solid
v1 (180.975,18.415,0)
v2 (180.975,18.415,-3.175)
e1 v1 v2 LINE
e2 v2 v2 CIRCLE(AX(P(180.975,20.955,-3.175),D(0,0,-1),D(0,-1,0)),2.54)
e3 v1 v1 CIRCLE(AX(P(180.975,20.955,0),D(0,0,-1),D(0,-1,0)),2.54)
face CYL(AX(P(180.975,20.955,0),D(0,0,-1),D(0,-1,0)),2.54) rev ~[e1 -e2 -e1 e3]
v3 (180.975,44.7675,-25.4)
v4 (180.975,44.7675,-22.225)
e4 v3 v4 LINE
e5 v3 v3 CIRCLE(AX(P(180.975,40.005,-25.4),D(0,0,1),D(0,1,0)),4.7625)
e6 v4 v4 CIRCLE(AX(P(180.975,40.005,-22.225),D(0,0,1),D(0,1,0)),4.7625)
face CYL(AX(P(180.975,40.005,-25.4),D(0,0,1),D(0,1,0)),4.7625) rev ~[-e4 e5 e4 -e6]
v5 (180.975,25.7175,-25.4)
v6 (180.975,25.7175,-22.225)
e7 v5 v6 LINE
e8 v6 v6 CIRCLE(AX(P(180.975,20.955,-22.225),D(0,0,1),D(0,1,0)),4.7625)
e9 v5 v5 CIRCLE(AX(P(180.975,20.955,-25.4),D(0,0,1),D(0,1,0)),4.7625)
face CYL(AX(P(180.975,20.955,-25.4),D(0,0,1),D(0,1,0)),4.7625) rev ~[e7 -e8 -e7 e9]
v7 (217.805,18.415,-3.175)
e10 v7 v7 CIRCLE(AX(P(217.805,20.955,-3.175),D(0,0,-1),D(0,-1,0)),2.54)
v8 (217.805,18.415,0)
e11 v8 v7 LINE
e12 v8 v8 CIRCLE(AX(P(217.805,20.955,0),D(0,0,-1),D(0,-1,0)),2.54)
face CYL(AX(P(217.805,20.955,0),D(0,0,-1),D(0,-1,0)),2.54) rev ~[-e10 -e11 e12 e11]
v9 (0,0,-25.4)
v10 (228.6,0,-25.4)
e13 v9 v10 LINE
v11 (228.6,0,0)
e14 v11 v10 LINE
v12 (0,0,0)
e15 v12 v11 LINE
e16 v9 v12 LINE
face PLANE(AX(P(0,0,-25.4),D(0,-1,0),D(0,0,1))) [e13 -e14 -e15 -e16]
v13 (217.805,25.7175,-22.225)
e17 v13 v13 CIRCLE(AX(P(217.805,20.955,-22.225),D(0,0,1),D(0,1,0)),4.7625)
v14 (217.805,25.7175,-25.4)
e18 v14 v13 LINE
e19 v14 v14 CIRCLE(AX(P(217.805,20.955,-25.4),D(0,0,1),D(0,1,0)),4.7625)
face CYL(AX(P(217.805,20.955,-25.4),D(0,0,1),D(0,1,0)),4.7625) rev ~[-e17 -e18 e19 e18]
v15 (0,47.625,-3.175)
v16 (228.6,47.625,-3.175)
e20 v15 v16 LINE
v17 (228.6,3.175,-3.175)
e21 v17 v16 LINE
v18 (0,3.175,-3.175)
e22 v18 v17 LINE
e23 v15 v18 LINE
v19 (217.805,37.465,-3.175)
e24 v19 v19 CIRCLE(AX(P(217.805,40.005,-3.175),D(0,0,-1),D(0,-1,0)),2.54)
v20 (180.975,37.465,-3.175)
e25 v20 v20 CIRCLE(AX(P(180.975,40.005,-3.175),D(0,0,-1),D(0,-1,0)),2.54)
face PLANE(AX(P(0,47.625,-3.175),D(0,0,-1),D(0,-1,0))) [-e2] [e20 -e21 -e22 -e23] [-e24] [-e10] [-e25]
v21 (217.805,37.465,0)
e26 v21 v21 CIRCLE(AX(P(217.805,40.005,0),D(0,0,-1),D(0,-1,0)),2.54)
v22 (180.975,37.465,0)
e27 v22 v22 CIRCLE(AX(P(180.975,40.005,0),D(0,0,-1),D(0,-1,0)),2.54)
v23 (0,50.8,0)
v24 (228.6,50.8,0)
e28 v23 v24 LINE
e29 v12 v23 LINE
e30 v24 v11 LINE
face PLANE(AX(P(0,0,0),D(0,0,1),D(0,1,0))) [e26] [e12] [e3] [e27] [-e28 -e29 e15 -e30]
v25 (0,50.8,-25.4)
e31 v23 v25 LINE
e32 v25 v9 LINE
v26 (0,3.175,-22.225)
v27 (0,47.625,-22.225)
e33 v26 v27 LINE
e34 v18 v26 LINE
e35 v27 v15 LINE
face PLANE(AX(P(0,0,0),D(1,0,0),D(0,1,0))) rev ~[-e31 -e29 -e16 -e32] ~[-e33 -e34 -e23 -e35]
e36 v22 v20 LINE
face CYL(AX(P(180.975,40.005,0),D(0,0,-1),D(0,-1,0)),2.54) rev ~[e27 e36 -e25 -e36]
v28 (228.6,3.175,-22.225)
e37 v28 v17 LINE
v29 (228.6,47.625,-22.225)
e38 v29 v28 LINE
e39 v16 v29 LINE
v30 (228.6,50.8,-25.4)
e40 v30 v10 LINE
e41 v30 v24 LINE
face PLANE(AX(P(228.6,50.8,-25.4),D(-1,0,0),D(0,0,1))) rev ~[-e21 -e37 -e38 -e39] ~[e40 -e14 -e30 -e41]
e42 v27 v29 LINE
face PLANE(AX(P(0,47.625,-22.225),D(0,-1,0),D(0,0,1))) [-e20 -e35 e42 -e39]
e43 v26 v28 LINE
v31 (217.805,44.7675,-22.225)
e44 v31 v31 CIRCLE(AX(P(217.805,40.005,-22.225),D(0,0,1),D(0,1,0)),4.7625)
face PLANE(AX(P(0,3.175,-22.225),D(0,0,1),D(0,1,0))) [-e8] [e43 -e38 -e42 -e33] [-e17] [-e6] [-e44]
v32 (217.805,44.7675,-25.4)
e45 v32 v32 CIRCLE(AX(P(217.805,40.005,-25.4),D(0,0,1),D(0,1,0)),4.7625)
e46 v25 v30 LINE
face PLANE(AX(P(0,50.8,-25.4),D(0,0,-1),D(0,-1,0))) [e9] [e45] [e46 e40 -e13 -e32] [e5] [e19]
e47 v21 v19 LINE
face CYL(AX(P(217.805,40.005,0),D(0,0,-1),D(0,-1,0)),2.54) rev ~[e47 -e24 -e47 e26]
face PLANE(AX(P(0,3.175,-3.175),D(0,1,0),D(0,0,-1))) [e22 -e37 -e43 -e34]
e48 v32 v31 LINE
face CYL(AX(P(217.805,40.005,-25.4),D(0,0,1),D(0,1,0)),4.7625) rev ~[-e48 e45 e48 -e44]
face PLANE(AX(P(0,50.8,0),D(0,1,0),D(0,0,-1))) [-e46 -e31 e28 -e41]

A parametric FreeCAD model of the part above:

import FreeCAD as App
import Part
import Sketcher
from FreeCAD import Vector
Q = App.Units.Quantity


def add_polygon(sketch, points):
    """Adds a closed chain of lines whose ends are joined by coincident constraints."""
    first, n = sketch.GeometryCount, len(points)
    for a, b in zip(points, points[1:] + points[:1]):
        sketch.addGeometry(Part.LineSegment(App.Vector(*a, 0), App.Vector(*b, 0)), False)
    for i in range(n):
        sketch.addConstraint(Sketcher.Constraint("Coincident", first + i, 2, first + (i + 1) % n, 1))

doc = App.newDocument("Part")
body = doc.addObject("PartDesign::Body", "Body")

# Sketch on YZ plane
sketch1 = body.newObject("Sketcher::SketchObject", "Sketch")
sketch1.AttachmentSupport = (doc.getObject("YZ_Plane"), [""])
sketch1.MapMode = "FlatFace"
add_polygon(sketch1, [(51, 0), (0, 0), (0, -25), (51, -25)])  # lines 0-3
add_polygon(sketch1, [(48, -3), (48, -22), (3, -22), (3, -3)])  # lines 4-7
sketch1.addConstraint([
    Sketcher.Constraint("Horizontal", 0),
    Sketcher.Constraint("Vertical", 1),
    Sketcher.Constraint("Horizontal", 2),
    Sketcher.Constraint("Vertical", 3),
    Sketcher.Constraint("Vertical", 4),
    Sketcher.Constraint("Horizontal", 5),
    Sketcher.Constraint("Vertical", 6),
    Sketcher.Constraint("Horizontal", 7),
    Sketcher.Constraint("Coincident", 0, 2, -1, 1),
    Sketcher.Constraint("DistanceX", 0, 2, 0, 1, Q("2 in")),
    Sketcher.Constraint("DistanceY", 1, 2, 1, 1, Q("1 in")),
    Sketcher.Constraint("DistanceX", -1, 1, 5, 2, Q("0.125 in")),
    Sketcher.Constraint("DistanceY", 6, 2, -1, 1, Q("0.125 in")),
    Sketcher.Constraint("DistanceX", 4, 2, 2, 2, Q("0.125 in")),
    Sketcher.Constraint("DistanceY", 2, 2, 4, 2, Q("0.125 in")),
])
pad1 = body.newObject("PartDesign::Pad", "Pad")
pad1.Profile = sketch1
pad1.Length = Q("27 in")

# Sketch on XZ plane
sketch2 = body.newObject("Sketcher::SketchObject", "Sketch001")
sketch2.AttachmentSupport = (doc.getObject("XZ_Plane"), [""])
sketch2.MapMode = "FlatFace"
sketch2.AttachmentOffset = App.Placement(Vector(0, 0, -2 * 25.4), App.Rotation())
add_polygon(sketch2, [(229, -25), (229, 0), (686, 0), (686, -25)])  # lines 0-3
sketch2.addConstraint([
    Sketcher.Constraint("Vertical", 0),
    Sketcher.Constraint("Horizontal", 1),
    Sketcher.Constraint("Vertical", 2),
    Sketcher.Constraint("Horizontal", 3),
    Sketcher.Constraint("PointOnObject", 0, 2, -1),
    Sketcher.Constraint("DistanceX", 1, 1, 1, 2, Q("18 in")),
    Sketcher.Constraint("DistanceY", 0, 1, 0, 2, Q("1 in")),
    Sketcher.Constraint("DistanceX", -1, 1, 0, 2, Q("9 in")),
])
pocket1 = body.newObject("PartDesign::Pocket", "Pocket")
pocket1.Profile = sketch2
pocket1.Length = Q("27 in")
pocket1.Reversed = True

# Sketch on XY plane
sketch3 = body.newObject("Sketcher::SketchObject", "Sketch002")
sketch3.AttachmentSupport = (doc.getObject("XY_Plane"), [""])
sketch3.MapMode = "FlatFace"
sketch3.addGeometry(Part.Circle(Vector(217.8, 40, 0), Vector(0, 0, 1), 2.5), False)
sketch3.addConstraint([
    Sketcher.Constraint("Diameter", 0, Q("0.2 in")),
    Sketcher.Constraint("DistanceX", -1, 1, 0, 3, Q("8.575 in")),
    Sketcher.Constraint("DistanceY", -1, 1, 0, 3, Q("1.575 in")),
])
doc.recompute()
hole = body.newObject("PartDesign::Hole", "Hole")
hole.Profile = sketch3
hole.ThreadType = "None"
hole.Diameter = Q("0.2 in")
hole.DepthType = "Dimension"
hole.Depth = Q("0.5 in")
hole.DrillPoint = "Angled"
hole.DrillPointAngle = 118

# Sketch on XY plane
sketch4 = body.newObject("Sketcher::SketchObject", "Sketch003")
sketch4.AttachmentSupport = (doc.getObject("XY_Plane"), [""])
sketch4.MapMode = "FlatFace"
sketch4.addGeometry(Part.Circle(Vector(217.8, 21, 0), Vector(0, 0, 1), 2.5), False)
sketch4.addConstraint([
    Sketcher.Constraint("Diameter", 0, Q("0.2 in")),
    Sketcher.Constraint("DistanceX", -1, 1, 0, 3, Q("8.575 in")),
    Sketcher.Constraint("DistanceY", -1, 1, 0, 3, Q("0.825 in")),
])
doc.recompute()
hole2 = body.newObject("PartDesign::Hole", "Hole001")
hole2.Profile = sketch4
hole2.ThreadType = "None"
hole2.Diameter = Q("0.2 in")
hole2.DepthType = "Dimension"
hole2.Depth = Q("0.5 in")
hole2.DrillPoint = "Angled"
hole2.DrillPointAngle = 118
doc.recompute()

linearpattern = body.newObject("PartDesign::LinearPattern", "LinearPattern")
linearpattern.Originals = [hole]
linearpattern.Direction = (doc.getObject("X_Axis"), [""])
linearpattern.Mode = "offset"
linearpattern.Offset = Q("1.45 in")
linearpattern.Occurrences = 2
linearpattern.Reversed = True
body.Tip = linearpattern
doc.recompute()

linearpattern2 = body.newObject("PartDesign::LinearPattern", "LinearPattern001")
linearpattern2.Originals = [hole2]
linearpattern2.Direction = (doc.getObject("X_Axis"), [""])
linearpattern2.Mode = "offset"
linearpattern2.Offset = Q("1.45 in")
linearpattern2.Occurrences = 2
linearpattern2.Reversed = True
body.Tip = linearpattern2

# Sketch on XY plane
sketch5 = body.newObject("Sketcher::SketchObject", "Sketch004")
sketch5.AttachmentSupport = (doc.getObject("XY_Plane"), [""])
sketch5.MapMode = "FlatFace"
sketch5.AttachmentOffset = App.Placement(Vector(0, 0, -1 * 25.4), App.Rotation())
sketch5.addGeometry(Part.Circle(Vector(217.8, 40, 0), Vector(0, 0, 1), 4.8), False)
sketch5.addConstraint([
    Sketcher.Constraint("Diameter", 0, Q("0.375 in")),
    Sketcher.Constraint("DistanceX", -1, 1, 0, 3, Q("8.575 in")),
    Sketcher.Constraint("DistanceY", -1, 1, 0, 3, Q("1.575 in")),
])
doc.recompute()
hole3 = body.newObject("PartDesign::Hole", "Hole002")
hole3.Profile = sketch5
hole3.ThreadType = "None"
hole3.Diameter = Q("0.375 in")
hole3.DepthType = "Dimension"
hole3.Depth = Q("0.5 in")
hole3.DrillPoint = "Angled"
hole3.DrillPointAngle = 118
hole3.Reversed = True
doc.recompute()

linearpattern3 = body.newObject("PartDesign::LinearPattern", "LinearPattern002")
linearpattern3.Originals = [hole3]
linearpattern3.Direction = (doc.getObject("X_Axis"), [""])
linearpattern3.Mode = "offset"
linearpattern3.Offset = Q("1.45 in")
linearpattern3.Occurrences = 2
linearpattern3.Reversed = True
body.Tip = linearpattern3

# Sketch on XY plane
sketch6 = body.newObject("Sketcher::SketchObject", "Sketch005")
sketch6.AttachmentSupport = (doc.getObject("XY_Plane"), [""])
sketch6.MapMode = "FlatFace"
sketch6.AttachmentOffset = App.Placement(Vector(0, 0, -1 * 25.4), App.Rotation())
sketch6.addGeometry(Part.Circle(Vector(217.8, 21, 0), Vector(0, 0, 1), 4.8), False)
sketch6.addConstraint([
    Sketcher.Constraint("Diameter", 0, Q("0.375 in")),
    Sketcher.Constraint("DistanceX", -1, 1, 0, 3, Q("8.575 in")),
    Sketcher.Constraint("DistanceY", -1, 1, 0, 3, Q("0.825 in")),
])
doc.recompute()
hole4 = body.newObject("PartDesign::Hole", "Hole003")
hole4.Profile = sketch6
hole4.ThreadType = "None"
hole4.Diameter = Q("0.375 in")
hole4.DepthType = "Dimension"
hole4.Depth = Q("0.5 in")
hole4.DrillPoint = "Angled"
hole4.DrillPointAngle = 118
hole4.Reversed = True
doc.recompute()

linearpattern4 = body.newObject("PartDesign::LinearPattern", "LinearPattern003")
linearpattern4.Originals = [hole4]
linearpattern4.Direction = (doc.getObject("X_Axis"), [""])
linearpattern4.Mode = "offset"
linearpattern4.Offset = Q("1.45 in")
linearpattern4.Occurrences = 2
linearpattern4.Reversed = True
body.Tip = linearpattern4

doc.recompute()
